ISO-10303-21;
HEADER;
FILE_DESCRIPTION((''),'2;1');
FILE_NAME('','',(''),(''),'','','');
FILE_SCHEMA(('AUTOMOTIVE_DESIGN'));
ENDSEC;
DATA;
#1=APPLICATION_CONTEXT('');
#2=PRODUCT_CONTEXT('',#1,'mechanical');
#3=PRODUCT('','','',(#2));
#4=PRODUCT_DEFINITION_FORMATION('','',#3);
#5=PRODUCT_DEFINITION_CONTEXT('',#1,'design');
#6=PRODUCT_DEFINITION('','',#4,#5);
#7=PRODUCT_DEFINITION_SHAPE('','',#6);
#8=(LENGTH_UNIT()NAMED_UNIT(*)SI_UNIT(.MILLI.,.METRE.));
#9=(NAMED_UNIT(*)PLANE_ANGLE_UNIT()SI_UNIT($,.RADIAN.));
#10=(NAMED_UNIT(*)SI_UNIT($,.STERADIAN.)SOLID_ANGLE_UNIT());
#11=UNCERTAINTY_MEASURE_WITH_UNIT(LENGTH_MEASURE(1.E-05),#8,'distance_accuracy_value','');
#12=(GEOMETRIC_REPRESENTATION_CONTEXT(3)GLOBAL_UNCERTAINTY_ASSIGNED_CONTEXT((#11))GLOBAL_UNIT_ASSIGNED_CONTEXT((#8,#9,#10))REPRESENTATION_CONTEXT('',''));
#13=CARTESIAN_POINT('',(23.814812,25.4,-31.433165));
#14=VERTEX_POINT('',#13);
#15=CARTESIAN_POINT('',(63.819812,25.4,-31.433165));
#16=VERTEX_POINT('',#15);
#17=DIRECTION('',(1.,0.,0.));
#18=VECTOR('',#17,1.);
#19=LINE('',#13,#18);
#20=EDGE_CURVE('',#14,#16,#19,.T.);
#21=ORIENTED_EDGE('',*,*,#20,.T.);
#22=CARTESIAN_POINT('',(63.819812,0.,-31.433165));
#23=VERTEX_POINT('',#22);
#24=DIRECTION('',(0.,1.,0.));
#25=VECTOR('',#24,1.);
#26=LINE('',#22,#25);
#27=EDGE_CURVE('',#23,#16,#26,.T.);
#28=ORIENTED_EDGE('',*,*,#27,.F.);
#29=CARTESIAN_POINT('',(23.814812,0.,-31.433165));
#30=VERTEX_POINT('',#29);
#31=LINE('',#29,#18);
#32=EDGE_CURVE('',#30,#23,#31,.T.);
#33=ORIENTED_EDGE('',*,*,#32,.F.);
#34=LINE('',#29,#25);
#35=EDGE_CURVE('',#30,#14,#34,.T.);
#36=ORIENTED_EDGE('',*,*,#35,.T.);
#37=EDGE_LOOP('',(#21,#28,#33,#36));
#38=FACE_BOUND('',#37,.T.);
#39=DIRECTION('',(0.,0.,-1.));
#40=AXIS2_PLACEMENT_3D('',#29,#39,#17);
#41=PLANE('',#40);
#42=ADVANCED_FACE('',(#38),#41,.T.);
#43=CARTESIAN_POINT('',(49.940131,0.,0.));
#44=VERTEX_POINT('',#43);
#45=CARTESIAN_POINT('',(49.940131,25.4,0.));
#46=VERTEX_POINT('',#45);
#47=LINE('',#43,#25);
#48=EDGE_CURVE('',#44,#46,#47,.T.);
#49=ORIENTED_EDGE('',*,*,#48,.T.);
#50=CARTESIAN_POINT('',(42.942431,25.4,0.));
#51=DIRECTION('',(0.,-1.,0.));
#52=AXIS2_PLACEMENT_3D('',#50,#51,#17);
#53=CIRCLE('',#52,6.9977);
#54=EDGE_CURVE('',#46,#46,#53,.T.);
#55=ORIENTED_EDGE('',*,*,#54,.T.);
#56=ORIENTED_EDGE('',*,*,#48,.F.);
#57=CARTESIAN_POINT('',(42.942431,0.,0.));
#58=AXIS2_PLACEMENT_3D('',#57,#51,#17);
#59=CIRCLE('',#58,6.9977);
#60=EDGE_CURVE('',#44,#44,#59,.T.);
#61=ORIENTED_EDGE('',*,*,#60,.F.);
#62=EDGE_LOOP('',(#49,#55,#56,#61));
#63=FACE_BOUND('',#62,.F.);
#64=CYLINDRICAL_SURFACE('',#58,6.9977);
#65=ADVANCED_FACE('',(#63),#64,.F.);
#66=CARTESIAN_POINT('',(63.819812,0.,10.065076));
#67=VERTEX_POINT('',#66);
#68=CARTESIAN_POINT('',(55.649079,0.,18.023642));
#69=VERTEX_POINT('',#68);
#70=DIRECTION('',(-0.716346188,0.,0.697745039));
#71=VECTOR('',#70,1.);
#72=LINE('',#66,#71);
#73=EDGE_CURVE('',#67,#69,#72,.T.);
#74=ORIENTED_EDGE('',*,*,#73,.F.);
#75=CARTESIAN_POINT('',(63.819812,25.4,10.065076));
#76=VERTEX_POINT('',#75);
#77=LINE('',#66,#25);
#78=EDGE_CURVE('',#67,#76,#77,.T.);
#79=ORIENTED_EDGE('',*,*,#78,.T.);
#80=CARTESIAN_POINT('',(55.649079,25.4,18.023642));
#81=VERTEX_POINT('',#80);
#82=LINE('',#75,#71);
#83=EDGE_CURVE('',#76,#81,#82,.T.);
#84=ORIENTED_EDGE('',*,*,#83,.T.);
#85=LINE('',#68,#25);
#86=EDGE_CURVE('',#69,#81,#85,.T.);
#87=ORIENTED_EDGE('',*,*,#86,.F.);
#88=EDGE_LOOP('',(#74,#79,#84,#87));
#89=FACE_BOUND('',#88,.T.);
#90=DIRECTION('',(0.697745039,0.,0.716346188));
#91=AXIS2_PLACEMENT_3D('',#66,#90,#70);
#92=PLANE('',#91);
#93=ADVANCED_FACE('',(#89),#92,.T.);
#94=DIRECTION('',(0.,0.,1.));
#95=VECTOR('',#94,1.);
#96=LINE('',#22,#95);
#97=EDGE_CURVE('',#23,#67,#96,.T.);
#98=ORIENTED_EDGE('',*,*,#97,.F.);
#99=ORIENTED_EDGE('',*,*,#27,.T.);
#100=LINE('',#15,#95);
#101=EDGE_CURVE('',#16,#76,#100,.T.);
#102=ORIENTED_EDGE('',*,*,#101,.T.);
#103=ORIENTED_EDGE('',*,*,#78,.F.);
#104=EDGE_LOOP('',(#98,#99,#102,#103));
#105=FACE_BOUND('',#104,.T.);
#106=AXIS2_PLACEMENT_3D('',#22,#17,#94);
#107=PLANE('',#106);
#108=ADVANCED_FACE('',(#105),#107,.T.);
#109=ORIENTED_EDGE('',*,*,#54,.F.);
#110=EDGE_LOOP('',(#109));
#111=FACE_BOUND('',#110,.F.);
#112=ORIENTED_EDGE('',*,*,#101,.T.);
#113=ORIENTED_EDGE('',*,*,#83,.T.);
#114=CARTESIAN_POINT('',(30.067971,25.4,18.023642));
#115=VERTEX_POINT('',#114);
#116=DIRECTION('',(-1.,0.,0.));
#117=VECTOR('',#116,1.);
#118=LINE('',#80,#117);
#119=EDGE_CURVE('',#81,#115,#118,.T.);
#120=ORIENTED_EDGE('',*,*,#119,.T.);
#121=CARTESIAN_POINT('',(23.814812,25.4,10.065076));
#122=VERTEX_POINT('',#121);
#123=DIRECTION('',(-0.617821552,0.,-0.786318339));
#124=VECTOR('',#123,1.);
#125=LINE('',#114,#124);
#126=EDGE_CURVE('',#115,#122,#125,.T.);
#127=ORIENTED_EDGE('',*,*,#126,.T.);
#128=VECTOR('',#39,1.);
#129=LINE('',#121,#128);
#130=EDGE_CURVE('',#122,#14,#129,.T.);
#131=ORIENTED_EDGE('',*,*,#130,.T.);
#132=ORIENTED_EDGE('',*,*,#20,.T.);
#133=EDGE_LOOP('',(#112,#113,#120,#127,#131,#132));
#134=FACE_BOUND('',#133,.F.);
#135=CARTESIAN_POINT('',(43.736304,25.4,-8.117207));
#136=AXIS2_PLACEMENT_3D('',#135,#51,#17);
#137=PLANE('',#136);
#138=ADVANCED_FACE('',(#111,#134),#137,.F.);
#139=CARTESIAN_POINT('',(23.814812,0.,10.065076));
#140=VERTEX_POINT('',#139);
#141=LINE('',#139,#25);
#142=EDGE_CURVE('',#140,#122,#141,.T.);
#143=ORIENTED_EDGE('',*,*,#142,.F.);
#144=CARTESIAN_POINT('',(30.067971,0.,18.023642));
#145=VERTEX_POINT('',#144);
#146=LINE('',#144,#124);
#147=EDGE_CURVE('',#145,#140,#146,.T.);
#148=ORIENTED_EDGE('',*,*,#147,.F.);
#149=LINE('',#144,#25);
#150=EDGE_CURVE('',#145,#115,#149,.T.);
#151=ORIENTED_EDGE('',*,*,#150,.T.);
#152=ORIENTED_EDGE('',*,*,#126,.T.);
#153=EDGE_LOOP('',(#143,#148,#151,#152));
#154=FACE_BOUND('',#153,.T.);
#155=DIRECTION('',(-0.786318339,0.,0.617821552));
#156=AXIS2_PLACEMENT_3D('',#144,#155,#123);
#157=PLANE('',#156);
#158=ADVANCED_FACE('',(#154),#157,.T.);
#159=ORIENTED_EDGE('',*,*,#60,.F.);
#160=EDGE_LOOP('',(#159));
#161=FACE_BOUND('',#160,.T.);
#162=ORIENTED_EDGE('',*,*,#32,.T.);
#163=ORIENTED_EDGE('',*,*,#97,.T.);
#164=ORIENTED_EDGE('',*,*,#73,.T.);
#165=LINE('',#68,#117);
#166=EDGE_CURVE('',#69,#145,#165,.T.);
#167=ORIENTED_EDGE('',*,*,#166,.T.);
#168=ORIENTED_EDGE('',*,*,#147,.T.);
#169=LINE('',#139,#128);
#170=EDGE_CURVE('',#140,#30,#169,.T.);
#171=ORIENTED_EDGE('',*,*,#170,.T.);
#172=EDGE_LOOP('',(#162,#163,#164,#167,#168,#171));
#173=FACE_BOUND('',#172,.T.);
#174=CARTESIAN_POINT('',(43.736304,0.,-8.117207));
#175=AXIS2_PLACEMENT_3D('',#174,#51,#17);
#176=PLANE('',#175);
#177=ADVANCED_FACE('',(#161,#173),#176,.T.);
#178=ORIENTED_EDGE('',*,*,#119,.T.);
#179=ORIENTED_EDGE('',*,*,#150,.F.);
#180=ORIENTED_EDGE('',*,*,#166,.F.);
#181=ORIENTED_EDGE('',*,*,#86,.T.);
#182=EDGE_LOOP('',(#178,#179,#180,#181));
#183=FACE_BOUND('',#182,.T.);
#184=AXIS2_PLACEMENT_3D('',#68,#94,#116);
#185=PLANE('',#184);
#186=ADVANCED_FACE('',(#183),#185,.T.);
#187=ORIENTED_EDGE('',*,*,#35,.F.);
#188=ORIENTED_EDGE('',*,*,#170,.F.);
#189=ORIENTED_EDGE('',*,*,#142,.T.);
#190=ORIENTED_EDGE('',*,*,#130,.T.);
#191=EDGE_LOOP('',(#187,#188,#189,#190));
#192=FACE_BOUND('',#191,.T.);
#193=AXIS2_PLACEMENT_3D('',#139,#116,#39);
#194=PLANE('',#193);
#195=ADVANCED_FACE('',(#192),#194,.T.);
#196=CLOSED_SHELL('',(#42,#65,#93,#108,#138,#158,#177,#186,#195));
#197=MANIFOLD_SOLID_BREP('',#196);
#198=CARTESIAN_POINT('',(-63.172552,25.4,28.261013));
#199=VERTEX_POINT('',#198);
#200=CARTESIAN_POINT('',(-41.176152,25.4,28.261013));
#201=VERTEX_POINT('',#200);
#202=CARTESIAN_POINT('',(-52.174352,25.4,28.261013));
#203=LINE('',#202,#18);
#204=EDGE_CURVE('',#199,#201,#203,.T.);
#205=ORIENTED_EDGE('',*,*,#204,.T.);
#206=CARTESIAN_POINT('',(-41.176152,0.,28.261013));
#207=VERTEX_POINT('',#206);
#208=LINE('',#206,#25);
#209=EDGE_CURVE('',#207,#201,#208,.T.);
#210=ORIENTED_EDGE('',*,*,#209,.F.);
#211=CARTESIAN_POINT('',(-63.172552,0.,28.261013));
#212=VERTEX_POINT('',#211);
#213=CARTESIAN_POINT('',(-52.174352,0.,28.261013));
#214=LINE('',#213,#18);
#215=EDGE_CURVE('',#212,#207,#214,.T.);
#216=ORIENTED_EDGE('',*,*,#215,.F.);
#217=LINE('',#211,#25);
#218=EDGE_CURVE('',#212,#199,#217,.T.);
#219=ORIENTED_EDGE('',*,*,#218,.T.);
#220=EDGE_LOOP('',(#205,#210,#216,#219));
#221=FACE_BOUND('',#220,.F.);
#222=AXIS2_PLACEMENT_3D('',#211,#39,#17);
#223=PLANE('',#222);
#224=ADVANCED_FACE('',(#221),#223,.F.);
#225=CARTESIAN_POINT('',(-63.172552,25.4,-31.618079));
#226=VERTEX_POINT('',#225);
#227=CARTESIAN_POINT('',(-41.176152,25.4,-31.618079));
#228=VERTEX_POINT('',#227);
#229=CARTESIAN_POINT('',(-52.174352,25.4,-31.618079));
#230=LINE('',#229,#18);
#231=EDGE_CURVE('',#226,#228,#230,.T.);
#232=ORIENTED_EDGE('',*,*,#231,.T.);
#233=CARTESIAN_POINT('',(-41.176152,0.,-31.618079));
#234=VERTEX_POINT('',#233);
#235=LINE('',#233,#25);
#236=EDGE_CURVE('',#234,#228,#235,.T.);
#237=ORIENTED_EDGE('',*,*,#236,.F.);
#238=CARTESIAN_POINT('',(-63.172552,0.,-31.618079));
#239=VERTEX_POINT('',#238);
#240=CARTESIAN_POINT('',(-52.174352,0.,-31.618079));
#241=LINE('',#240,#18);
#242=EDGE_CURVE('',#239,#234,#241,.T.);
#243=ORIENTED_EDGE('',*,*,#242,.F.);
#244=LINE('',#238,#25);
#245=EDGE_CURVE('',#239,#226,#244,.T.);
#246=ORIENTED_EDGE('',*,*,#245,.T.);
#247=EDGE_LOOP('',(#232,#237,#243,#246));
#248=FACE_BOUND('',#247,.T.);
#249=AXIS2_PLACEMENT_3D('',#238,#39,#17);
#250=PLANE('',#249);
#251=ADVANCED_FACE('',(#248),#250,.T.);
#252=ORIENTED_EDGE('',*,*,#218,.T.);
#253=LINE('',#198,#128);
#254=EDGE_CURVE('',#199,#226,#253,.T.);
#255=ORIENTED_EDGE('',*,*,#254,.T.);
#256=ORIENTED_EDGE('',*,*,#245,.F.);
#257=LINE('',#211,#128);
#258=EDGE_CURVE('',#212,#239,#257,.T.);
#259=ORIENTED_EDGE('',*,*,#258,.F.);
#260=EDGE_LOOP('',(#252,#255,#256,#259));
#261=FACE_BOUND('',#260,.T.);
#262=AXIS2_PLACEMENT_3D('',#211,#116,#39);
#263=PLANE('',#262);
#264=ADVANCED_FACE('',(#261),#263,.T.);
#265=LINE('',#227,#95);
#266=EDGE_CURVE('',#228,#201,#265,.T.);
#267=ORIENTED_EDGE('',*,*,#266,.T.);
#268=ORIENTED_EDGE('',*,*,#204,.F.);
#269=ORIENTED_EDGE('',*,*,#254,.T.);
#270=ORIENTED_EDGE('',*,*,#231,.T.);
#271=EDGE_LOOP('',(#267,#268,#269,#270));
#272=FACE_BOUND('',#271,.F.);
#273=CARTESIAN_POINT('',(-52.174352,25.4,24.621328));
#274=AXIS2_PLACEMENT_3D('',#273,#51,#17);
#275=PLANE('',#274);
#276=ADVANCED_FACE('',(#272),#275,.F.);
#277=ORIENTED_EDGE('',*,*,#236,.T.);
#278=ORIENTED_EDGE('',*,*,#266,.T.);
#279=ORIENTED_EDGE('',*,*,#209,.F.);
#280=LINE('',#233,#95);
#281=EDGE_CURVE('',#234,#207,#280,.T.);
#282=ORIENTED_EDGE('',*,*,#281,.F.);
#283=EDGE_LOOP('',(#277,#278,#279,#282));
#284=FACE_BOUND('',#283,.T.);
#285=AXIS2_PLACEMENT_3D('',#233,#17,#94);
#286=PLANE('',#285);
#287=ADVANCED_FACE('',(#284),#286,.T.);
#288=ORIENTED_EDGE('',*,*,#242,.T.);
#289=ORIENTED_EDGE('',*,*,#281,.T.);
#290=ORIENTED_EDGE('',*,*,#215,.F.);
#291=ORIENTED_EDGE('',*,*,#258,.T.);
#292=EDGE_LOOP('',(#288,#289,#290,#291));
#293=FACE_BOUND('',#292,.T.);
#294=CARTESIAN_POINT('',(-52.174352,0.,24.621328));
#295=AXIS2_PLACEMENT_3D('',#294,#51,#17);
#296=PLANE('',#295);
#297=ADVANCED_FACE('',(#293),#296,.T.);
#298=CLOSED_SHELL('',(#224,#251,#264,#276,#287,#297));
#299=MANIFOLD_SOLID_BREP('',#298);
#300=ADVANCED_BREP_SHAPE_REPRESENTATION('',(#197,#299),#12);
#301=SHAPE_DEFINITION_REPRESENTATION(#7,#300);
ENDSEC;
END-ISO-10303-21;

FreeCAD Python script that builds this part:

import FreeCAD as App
import Part
import Sketcher
from FreeCAD import Vector
Q = App.Units.Quantity

doc = App.newDocument("Part")
body = doc.addObject("PartDesign::Body", "Body")
body.AllowCompound = True

sketch1 = doc.addObject("Sketcher::SketchObject", "Sketch")
body.addObject(sketch1)
sketch1.AttachmentSupport = (doc.XZ_Plane, [""])
sketch1.MapMode = "FlatFace"
sketch1.addGeometry([
    Part.LineSegment(Vector(-63, 28, 0), Vector(-63, -32, 0)),
    Part.LineSegment(Vector(-63, -32, 0), Vector(-41, -32, 0)),
    Part.LineSegment(Vector(-41, -32, 0), Vector(-41, 28, 0)),
    Part.LineSegment(Vector(-41, 28, 0), Vector(-63, 28, 0)),
    Part.LineSegment(Vector(56, 18, 0), Vector(30, 18, 0)),
    Part.LineSegment(Vector(30, 18, 0), Vector(24, 10, 0)),
    Part.LineSegment(Vector(24, 10, 0), Vector(24, -31, 0)),
    Part.LineSegment(Vector(24, -31, 0), Vector(64, -31, 0)),
    Part.LineSegment(Vector(64, -31, 0), Vector(64, 10, 0)),
    Part.LineSegment(Vector(64, 10, 0), Vector(56, 18, 0)),
    Part.Circle(Vector(43, 0, 0), Vector(0, 0, 1), 7),
], False)
sketch1.addConstraint([
    Sketcher.Constraint("Coincident", 0, 2, 1, 1),
    Sketcher.Constraint("Coincident", 1, 2, 2, 1),
    Sketcher.Constraint("Coincident", 2, 2, 3, 1),
    Sketcher.Constraint("Coincident", 3, 2, 0, 1),
    Sketcher.Constraint("Coincident", 4, 2, 5, 1),
    Sketcher.Constraint("Coincident", 5, 2, 6, 1),
    Sketcher.Constraint("Coincident", 6, 2, 7, 1),
    Sketcher.Constraint("Coincident", 7, 2, 8, 1),
    Sketcher.Constraint("Coincident", 8, 2, 9, 1),
    Sketcher.Constraint("Coincident", 9, 2, 4, 1),
    Sketcher.Constraint("Vertical", 0),
    Sketcher.Constraint("Horizontal", 1),
    Sketcher.Constraint("Vertical", 2),
    Sketcher.Constraint("Horizontal", 3),
    Sketcher.Constraint("Horizontal", 4),
    Sketcher.Constraint("Vertical", 6),
    Sketcher.Constraint("Horizontal", 7),
    Sketcher.Constraint("Vertical", 8),
    Sketcher.Constraint("PointOnObject", 10, 3, -1),
    Sketcher.Constraint("Horizontal", 5, 2, 8, 2),
    Sketcher.Constraint("Diameter", 10, Q("0.551 in")),
    Sketcher.Constraint("DistanceX", 1, 1, 1, 2, Q("0.866 in")),
    Sketcher.Constraint("DistanceX", 7, 1, 7, 2, Q("1.575 in")),
    Sketcher.Constraint("DistanceX", 4, 2, 4, 1, Q("25.581108 mm")),
    Sketcher.Constraint("DistanceY", 6, 2, 6, 1, Q("41.498241 mm")),
    Sketcher.Constraint("DistanceY", 0, 2, 0, 1, Q("59.879092 mm")),
    Sketcher.Constraint("DistanceX", -1, 1, 10, 3, Q("42.942431 mm")),
    Sketcher.Constraint("DistanceY", 0, 2, -1, 1, Q("31.618079 mm")),
    Sketcher.Constraint("DistanceX", -1, 1, 4, 2, Q("30.067971 mm")),
    Sketcher.Constraint("DistanceY", -1, 1, 4, 2, Q("18.023642 mm")),
    Sketcher.Constraint("DistanceX", -1, 1, 5, 2, Q("23.814812 mm")),
    Sketcher.Constraint("Distance", 5, Q("10.121303 mm")),
    Sketcher.Constraint("DistanceX", 0, 2, -1, 1, Q("63.172552 mm")),
])
pad1 = doc.addObject("PartDesign::Pad", "Pad")
body.addObject(pad1)
pad1.Profile = sketch1
pad1.Length = Q("1 in")
pad1.Reversed = True

doc.recompute()
